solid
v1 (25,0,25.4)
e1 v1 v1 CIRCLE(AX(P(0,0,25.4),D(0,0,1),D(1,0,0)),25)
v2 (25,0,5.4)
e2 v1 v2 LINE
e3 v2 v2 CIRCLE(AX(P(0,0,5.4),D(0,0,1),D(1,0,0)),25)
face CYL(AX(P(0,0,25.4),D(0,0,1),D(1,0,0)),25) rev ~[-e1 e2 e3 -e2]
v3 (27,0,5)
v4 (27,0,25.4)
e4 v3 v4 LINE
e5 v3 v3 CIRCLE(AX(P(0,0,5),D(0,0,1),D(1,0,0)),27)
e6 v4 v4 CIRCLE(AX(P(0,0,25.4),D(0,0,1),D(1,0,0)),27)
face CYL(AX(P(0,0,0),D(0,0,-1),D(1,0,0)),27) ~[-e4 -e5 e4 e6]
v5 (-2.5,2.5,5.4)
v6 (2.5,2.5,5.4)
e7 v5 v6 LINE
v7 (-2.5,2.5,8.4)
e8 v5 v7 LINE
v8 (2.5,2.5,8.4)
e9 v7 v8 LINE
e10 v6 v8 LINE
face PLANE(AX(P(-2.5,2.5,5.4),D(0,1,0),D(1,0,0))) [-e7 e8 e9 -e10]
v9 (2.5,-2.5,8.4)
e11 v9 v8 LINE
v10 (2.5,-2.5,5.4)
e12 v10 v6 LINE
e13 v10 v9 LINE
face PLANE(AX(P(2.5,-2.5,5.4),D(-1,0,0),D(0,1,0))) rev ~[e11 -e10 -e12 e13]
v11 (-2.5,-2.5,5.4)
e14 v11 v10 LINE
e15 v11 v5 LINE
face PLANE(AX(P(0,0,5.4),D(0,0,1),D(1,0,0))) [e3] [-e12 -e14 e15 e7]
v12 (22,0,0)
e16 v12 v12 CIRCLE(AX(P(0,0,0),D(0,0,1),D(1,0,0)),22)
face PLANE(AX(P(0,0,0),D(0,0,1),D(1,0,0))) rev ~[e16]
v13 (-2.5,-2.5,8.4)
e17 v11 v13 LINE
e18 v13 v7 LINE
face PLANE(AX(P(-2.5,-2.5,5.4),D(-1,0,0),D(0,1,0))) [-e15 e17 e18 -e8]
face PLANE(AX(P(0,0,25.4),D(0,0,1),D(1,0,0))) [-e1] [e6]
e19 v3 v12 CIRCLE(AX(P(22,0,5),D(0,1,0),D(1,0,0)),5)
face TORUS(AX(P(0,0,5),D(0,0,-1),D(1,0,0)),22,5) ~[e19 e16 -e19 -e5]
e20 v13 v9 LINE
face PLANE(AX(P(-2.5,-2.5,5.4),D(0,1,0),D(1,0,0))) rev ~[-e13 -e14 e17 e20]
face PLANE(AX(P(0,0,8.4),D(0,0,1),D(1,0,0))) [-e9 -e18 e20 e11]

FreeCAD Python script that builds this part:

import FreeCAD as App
import Part
import Sketcher


def edges_at(feature, points):
    """Names of the edges that pass closest to the given points."""
    edges = feature.Shape.Edges
    near = lambda p: min(range(len(edges)), key=lambda i: edges[i].distToShape(Part.Vertex(*p))[0])
    return sorted({f"Edge{near(p) + 1}" for p in points})


def add_polygon(sketch, points):
    """Adds a closed chain of lines whose ends are joined by coincident constraints."""
    first, n = sketch.GeometryCount, len(points)
    for a, b in zip(points, points[1:] + points[:1]):
        sketch.addGeometry(Part.LineSegment(App.Vector(*a, 0), App.Vector(*b, 0)), False)
    for i in range(n):
        sketch.addConstraint(Sketcher.Constraint("Coincident", first + i, 2, first + (i + 1) % n, 1))

doc = App.newDocument("Part")
body = doc.addObject("PartDesign::Body", "Body")

# Sketch on XY plane
sketch1 = body.newObject("Sketcher::SketchObject", "Sketch")
sketch1.AttachmentSupport = (doc.getObject("XY_Plane"), [""])
sketch1.MapMode = "FlatFace"
sketch1.addGeometry(Part.Circle(App.Vector(0, 0, 0), App.Vector(0, 0, 1), 27), False)
sketch1.addConstraint([
    Sketcher.Constraint("Coincident", 0, 3, -1, 1),
    Sketcher.Constraint("Diameter", 0, 54.0),
])
pad1 = body.newObject("PartDesign::Pad", "Pad")
pad1.Profile = sketch1
pad1.Length = 25.4

# Sketch on XY plane
sketch2 = body.newObject("Sketcher::SketchObject", "Sketch001")
sketch2.AttachmentSupport = (doc.getObject("XY_Plane"), [""])
sketch2.MapMode = "FlatFace"
sketch2.AttachmentOffset = App.Placement(App.Vector(0, 0, 25.4), App.Rotation())
sketch2.addGeometry(Part.Circle(App.Vector(0, 0, 0), App.Vector(0, 0, 1), 25), False)
sketch2.addConstraint([
    Sketcher.Constraint("Coincident", 0, 3, -1, 1),
    Sketcher.Constraint("Diameter", 0, 50.0),
])
pocket1 = body.newObject("PartDesign::Pocket", "Pocket")
pocket1.Profile = sketch2
pocket1.Length = 20
doc.recompute()

fillet = body.newObject("PartDesign::Fillet", "Fillet")
fillet.Base = (pocket1, edges_at(pocket1, [(-27, 0, 0)]))
fillet.Radius = 5

# Sketch on XY plane
sketch3 = body.newObject("Sketcher::SketchObject", "Sketch002")
sketch3.AttachmentSupport = (doc.getObject("XY_Plane"), [""])
sketch3.MapMode = "FlatFace"
sketch3.AttachmentOffset = App.Placement(App.Vector(0, 0, 5.4), App.Rotation())
add_polygon(sketch3, [(-2, 2), (-2, -2), (2, -2), (2, 2)])  # lines 0-3
sketch3.addConstraint([
    Sketcher.Constraint("Vertical", 0),
    Sketcher.Constraint("Horizontal", 1),
    Sketcher.Constraint("Vertical", 2),
    Sketcher.Constraint("Horizontal", 3),
    Sketcher.Constraint("Symmetric", 0, 2, 2, 2, -1, 1),
    Sketcher.Constraint("Equal", 3, 0),
    Sketcher.Constraint("DistanceX", 1, 1, 1, 2, 5.0),
])
pad2 = body.newObject("PartDesign::Pad", "Pad001")
pad2.Profile = sketch3
pad2.Length = 3

doc.recompute()
